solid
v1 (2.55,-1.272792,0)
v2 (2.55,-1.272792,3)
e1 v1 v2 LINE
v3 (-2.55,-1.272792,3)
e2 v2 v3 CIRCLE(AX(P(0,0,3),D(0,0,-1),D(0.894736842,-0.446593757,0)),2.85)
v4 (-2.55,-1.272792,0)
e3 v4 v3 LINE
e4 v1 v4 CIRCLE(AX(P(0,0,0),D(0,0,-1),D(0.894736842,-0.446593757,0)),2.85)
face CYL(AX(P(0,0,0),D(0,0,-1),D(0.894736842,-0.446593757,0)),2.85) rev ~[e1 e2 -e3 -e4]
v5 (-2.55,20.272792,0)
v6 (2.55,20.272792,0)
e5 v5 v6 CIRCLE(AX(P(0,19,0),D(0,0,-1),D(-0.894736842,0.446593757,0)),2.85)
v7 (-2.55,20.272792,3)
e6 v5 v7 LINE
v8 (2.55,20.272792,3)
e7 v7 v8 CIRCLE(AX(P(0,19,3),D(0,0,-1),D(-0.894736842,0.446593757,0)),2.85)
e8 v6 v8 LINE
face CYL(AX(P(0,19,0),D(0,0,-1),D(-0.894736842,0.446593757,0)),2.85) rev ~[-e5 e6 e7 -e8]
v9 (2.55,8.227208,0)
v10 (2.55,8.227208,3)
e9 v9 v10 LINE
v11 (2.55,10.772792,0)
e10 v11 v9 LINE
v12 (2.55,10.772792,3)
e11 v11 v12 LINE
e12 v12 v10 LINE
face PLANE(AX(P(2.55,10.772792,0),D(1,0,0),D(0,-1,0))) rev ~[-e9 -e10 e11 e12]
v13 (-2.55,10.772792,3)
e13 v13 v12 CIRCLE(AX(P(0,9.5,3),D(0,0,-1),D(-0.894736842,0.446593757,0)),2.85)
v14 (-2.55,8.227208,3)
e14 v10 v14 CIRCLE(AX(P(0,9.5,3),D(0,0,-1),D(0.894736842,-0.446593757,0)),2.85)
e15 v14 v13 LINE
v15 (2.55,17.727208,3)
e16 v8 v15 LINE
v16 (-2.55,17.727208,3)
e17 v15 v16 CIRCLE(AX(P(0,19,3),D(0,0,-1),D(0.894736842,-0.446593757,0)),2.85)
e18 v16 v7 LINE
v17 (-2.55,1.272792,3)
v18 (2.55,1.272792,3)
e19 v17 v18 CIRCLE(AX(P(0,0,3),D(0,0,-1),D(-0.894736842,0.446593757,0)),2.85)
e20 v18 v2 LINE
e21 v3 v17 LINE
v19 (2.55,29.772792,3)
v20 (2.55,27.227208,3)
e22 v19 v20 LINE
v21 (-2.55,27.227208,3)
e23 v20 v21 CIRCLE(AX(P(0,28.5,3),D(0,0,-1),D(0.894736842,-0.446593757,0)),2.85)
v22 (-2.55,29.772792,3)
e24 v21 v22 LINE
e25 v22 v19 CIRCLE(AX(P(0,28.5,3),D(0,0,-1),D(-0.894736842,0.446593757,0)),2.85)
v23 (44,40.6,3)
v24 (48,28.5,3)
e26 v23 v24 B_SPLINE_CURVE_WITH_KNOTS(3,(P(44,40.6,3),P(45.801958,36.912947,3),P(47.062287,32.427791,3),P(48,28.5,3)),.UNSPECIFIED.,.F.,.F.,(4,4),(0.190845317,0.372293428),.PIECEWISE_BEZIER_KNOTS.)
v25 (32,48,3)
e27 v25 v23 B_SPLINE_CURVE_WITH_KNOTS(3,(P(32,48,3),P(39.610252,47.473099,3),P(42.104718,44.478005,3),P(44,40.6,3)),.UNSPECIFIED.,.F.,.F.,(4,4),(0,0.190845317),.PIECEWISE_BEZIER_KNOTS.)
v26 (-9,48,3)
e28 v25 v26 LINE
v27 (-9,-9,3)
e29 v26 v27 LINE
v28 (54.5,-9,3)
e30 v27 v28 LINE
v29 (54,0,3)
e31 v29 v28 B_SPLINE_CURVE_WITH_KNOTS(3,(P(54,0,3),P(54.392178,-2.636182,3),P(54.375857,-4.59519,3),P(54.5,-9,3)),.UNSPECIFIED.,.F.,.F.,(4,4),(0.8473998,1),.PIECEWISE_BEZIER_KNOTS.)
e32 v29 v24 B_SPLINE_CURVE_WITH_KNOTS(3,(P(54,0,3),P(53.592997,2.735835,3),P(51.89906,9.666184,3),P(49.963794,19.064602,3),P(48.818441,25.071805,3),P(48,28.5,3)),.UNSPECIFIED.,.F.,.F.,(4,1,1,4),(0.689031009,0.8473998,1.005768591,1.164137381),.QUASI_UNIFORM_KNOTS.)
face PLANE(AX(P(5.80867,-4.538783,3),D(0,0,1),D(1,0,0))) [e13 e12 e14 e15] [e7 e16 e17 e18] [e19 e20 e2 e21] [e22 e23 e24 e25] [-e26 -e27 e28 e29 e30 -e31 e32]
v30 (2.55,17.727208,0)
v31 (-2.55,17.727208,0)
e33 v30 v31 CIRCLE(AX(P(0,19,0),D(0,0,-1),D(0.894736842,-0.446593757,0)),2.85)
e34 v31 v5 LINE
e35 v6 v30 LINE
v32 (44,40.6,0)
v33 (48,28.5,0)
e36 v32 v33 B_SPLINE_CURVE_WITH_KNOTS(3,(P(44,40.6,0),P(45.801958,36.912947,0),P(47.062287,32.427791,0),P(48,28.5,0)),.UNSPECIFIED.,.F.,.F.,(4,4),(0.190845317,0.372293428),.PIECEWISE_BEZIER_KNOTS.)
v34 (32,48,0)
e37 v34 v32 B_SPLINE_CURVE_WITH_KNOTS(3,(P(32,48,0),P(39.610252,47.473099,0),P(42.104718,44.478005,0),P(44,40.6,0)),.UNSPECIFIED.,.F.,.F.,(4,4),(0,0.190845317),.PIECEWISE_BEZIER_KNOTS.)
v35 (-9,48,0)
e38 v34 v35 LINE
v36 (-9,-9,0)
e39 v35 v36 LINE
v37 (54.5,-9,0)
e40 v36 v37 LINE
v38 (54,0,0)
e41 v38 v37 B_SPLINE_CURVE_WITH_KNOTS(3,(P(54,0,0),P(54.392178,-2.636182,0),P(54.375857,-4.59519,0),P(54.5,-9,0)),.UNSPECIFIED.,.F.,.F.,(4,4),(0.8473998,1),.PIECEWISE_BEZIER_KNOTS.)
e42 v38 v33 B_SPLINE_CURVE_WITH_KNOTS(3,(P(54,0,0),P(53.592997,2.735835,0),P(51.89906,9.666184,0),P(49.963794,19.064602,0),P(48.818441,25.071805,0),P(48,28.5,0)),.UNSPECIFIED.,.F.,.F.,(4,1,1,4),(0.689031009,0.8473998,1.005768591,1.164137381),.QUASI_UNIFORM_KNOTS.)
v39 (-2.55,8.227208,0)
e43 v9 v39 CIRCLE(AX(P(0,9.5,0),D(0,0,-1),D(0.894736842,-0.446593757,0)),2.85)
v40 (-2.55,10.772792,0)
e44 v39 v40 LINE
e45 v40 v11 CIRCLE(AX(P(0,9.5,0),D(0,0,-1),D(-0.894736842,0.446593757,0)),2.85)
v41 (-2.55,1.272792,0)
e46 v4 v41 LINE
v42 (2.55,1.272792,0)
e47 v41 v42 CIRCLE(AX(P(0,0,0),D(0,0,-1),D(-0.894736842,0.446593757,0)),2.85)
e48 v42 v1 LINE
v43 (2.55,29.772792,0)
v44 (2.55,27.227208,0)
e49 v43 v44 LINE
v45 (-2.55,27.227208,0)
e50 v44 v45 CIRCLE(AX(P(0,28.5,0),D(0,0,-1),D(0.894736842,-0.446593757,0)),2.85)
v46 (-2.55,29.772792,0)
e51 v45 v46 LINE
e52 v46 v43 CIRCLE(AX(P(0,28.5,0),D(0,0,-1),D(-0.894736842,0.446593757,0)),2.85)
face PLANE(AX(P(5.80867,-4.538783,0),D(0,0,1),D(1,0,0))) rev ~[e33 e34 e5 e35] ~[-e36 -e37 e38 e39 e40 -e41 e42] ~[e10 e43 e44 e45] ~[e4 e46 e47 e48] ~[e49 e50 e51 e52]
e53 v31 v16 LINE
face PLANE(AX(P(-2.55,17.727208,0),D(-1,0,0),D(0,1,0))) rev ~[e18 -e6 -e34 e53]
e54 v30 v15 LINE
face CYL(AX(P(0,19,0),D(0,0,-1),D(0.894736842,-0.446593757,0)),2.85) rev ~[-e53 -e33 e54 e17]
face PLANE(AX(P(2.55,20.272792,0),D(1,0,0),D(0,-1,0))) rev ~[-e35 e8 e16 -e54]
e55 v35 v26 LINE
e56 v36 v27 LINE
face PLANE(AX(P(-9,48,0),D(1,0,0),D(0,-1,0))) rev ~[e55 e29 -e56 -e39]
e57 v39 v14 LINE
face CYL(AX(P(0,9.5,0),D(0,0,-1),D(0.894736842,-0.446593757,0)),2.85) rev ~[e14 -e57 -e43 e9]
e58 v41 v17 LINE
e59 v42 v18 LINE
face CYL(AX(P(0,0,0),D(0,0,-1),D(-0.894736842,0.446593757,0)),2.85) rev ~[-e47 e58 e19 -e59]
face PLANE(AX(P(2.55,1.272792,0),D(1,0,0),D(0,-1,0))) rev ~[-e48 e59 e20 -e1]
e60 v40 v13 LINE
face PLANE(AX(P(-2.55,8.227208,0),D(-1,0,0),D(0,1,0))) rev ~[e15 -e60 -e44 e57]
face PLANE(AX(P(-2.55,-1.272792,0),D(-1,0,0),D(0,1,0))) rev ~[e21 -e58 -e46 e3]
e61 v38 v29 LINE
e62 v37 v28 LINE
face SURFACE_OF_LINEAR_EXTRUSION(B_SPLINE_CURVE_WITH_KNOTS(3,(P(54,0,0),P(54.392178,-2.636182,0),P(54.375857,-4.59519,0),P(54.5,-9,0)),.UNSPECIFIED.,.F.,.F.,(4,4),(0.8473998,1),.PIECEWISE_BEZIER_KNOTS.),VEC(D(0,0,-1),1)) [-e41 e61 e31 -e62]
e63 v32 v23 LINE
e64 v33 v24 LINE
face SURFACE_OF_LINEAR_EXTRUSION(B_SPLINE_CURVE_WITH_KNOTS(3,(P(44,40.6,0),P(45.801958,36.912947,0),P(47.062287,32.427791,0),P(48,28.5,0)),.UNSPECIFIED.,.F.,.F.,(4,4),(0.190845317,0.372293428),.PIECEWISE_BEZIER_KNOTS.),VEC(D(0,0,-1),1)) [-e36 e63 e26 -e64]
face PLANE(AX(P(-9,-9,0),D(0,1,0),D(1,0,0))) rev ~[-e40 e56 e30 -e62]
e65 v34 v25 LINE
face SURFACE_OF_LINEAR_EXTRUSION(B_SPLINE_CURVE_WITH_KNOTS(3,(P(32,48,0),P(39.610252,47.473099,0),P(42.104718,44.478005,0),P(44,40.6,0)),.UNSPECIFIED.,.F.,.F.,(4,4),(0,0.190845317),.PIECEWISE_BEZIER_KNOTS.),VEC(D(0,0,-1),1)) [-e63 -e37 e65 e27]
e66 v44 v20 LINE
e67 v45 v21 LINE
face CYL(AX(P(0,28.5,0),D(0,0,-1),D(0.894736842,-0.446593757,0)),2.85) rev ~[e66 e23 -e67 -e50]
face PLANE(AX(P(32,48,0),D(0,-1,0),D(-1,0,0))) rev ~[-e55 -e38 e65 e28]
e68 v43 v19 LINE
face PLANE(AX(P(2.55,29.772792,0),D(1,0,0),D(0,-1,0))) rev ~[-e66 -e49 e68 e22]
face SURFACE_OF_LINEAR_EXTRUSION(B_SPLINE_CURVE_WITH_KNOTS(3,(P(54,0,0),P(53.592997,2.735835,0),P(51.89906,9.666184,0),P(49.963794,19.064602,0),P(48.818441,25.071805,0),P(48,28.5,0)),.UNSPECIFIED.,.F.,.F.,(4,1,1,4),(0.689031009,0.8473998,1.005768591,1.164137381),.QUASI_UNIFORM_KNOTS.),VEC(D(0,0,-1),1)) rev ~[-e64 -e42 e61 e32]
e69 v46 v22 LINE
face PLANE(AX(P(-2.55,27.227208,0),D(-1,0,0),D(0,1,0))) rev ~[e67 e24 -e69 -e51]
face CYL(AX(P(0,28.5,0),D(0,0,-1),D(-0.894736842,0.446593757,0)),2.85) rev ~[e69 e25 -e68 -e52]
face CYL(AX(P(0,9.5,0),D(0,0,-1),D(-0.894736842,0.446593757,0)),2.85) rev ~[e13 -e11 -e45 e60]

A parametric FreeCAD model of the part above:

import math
import FreeCAD as App
import Part
import Sketcher
Q = App.Units.Quantity

doc = App.newDocument("Part")
body = doc.addObject("PartDesign::Body", "Body")

sketch1 = doc.addObject("Sketcher::SketchObject", "Sketch")
body.addObject(sketch1)
sketch1.AttachmentSupport = (doc.XY_Plane, [""])
sketch1.MapMode = "FlatFace"
sketch1.addGeometry(Part.BSplineCurve([App.Vector(54, 0, 0), App.Vector(53.592997, 2.735835, 0), App.Vector(51.89906, 9.666184, 0), App.Vector(49.963794, 19.064602, 0), App.Vector(48.818441, 25.071805, 0), App.Vector(48, 28.5, 0)], [4, 1, 1, 4], [0.689031009, 0.8473998, 1.005768591, 1.164137381], False, 3, [1, 1, 1, 1, 1, 1], False), False)
sketch1.addGeometry(Part.BSplineCurve([App.Vector(44, 40.6, 0), App.Vector(45.801958, 36.912947, 0), App.Vector(47.062287, 32.427791, 0), App.Vector(48, 28.5, 0)], [4, 4], [0.190845317, 0.372293428], False, 3, [1, 1, 1, 1], False), False)
sketch1.addGeometry(Part.BSplineCurve([App.Vector(32, 48, 0), App.Vector(39.610252, 47.473099, 0), App.Vector(42.104718, 44.478005, 0), App.Vector(44, 40.6, 0)], [4, 4], [0, 0.190845317], False, 3, [1, 1, 1, 1], False), False)
sketch1.addGeometry(Part.LineSegment(App.Vector(32, 48, 0), App.Vector(-9, 48, 0)), False)
sketch1.addGeometry(Part.LineSegment(App.Vector(-9, 48, 0), App.Vector(-9, -9, 0)), False)
sketch1.addGeometry(Part.LineSegment(App.Vector(-9, -9, 0), App.Vector(54.5, -9, 0)), False)
sketch1.addGeometry(Part.BSplineCurve([App.Vector(54, 0, 0), App.Vector(54.392178, -2.636182, 0), App.Vector(54.375857, -4.59519, 0), App.Vector(54.5, -9, 0)], [4, 4], [0.8473998, 1], False, 3, [1, 1, 1, 1], False), False)
sketch1.addGeometry(Part.ArcOfCircle(Part.Circle(App.Vector(0, 0, 0), App.Vector(0, 0, 1), 2.85), math.radians(26.525352), math.radians(153.474648)), False)
sketch1.addGeometry(Part.LineSegment(App.Vector(2.55, 1.272792, 0), App.Vector(2.55, -1.272792, 0)), False)
sketch1.addGeometry(Part.ArcOfCircle(Part.Circle(App.Vector(0, 0, 0), App.Vector(0, 0, 1), 2.85), math.radians(-153.474648), math.radians(-26.525352)), False)
sketch1.addGeometry(Part.LineSegment(App.Vector(-2.55, -1.272792, 0), App.Vector(-2.55, 1.272792, 0)), False)
sketch1.addGeometry(Part.LineSegment(App.Vector(2.55, 10.772792, 0), App.Vector(2.55, 8.227208, 0)), False)
sketch1.addGeometry(Part.ArcOfCircle(Part.Circle(App.Vector(0, 9.5, 0), App.Vector(0, 0, 1), 2.85), math.radians(-153.474648), math.radians(-26.525352)), False)
sketch1.addGeometry(Part.LineSegment(App.Vector(-2.55, 8.227208, 0), App.Vector(-2.55, 10.772792, 0)), False)
sketch1.addGeometry(Part.ArcOfCircle(Part.Circle(App.Vector(0, 9.5, 0), App.Vector(0, 0, 1), 2.85), math.radians(26.525352), math.radians(153.474648)), False)
sketch1.addGeometry(Part.ArcOfCircle(Part.Circle(App.Vector(0, 19, 0), App.Vector(0, 0, 1), 2.85), math.radians(26.525352), math.radians(153.474648)), False)
sketch1.addGeometry(Part.LineSegment(App.Vector(2.55, 20.272792, 0), App.Vector(2.55, 17.727208, 0)), False)
sketch1.addGeometry(Part.ArcOfCircle(Part.Circle(App.Vector(0, 19, 0), App.Vector(0, 0, 1), 2.85), math.radians(-153.474648), math.radians(-26.525352)), False)
sketch1.addGeometry(Part.LineSegment(App.Vector(-2.55, 17.727208, 0), App.Vector(-2.55, 20.272792, 0)), False)
sketch1.addGeometry(Part.LineSegment(App.Vector(2.55, 29.772792, 0), App.Vector(2.55, 27.227208, 0)), False)
sketch1.addGeometry(Part.ArcOfCircle(Part.Circle(App.Vector(0, 28.5, 0), App.Vector(0, 0, 1), 2.85), math.radians(-153.474648), math.radians(-26.525352)), False)
sketch1.addGeometry(Part.LineSegment(App.Vector(-2.55, 27.227208, 0), App.Vector(-2.55, 29.772792, 0)), False)
sketch1.addGeometry(Part.ArcOfCircle(Part.Circle(App.Vector(0, 28.5, 0), App.Vector(0, 0, 1), 2.85), math.radians(26.525352), math.radians(153.474648)), False)
sketch1.addConstraint(Sketcher.Constraint("Block", 0))
sketch1.addConstraint(Sketcher.Constraint("Block", 1))
sketch1.addConstraint(Sketcher.Constraint("Block", 2))
sketch1.addConstraint(Sketcher.Constraint("Block", 6))
sketch1.addConstraint(Sketcher.Constraint("Coincident", 2, 1, 3, 1))
sketch1.addConstraint(Sketcher.Constraint("Coincident", 3, 2, 4, 1))
sketch1.addConstraint(Sketcher.Constraint("Coincident", 4, 2, 5, 1))
sketch1.addConstraint(Sketcher.Constraint("Coincident", 5, 2, 6, 2))
sketch1.addConstraint(Sketcher.Constraint("Coincident", 7, 1, 8, 1))
sketch1.addConstraint(Sketcher.Constraint("Coincident", 8, 2, 9, 2))
sketch1.addConstraint(Sketcher.Constraint("Coincident", 9, 1, 10, 1))
sketch1.addConstraint(Sketcher.Constraint("Coincident", 10, 2, 7, 2))
sketch1.addConstraint(Sketcher.Constraint("Coincident", 11, 2, 12, 2))
sketch1.addConstraint(Sketcher.Constraint("Coincident", 12, 1, 13, 1))
sketch1.addConstraint(Sketcher.Constraint("Coincident", 13, 2, 14, 2))
sketch1.addConstraint(Sketcher.Constraint("Coincident", 14, 1, 11, 1))
sketch1.addConstraint(Sketcher.Constraint("Coincident", 15, 1, 16, 1))
sketch1.addConstraint(Sketcher.Constraint("Coincident", 16, 2, 17, 2))
sketch1.addConstraint(Sketcher.Constraint("Coincident", 17, 1, 18, 1))
sketch1.addConstraint(Sketcher.Constraint("Coincident", 18, 2, 15, 2))
sketch1.addConstraint(Sketcher.Constraint("Coincident", 19, 2, 20, 2))
sketch1.addConstraint(Sketcher.Constraint("Coincident", 20, 1, 21, 1))
sketch1.addConstraint(Sketcher.Constraint("Coincident", 21, 2, 22, 2))
sketch1.addConstraint(Sketcher.Constraint("Coincident", 22, 1, 19, 1))
sketch1.addConstraint(Sketcher.Constraint("Horizontal", 3))
sketch1.addConstraint(Sketcher.Constraint("Vertical", 4))
sketch1.addConstraint(Sketcher.Constraint("Horizontal", 5))
sketch1.addConstraint(Sketcher.Constraint("Vertical", 8))
sketch1.addConstraint(Sketcher.Constraint("Vertical", 10))
sketch1.addConstraint(Sketcher.Constraint("Vertical", 11))
sketch1.addConstraint(Sketcher.Constraint("Vertical", 13))
sketch1.addConstraint(Sketcher.Constraint("Vertical", 16))
sketch1.addConstraint(Sketcher.Constraint("Vertical", 18))
sketch1.addConstraint(Sketcher.Constraint("Vertical", 19))
sketch1.addConstraint(Sketcher.Constraint("Vertical", 21))
sketch1.addConstraint(Sketcher.Constraint("Coincident", 7, 3, -1, 1))
sketch1.addConstraint(Sketcher.Constraint("Coincident", 9, 3, -1, 1))
sketch1.addConstraint(Sketcher.Constraint("Coincident", 14, 3, 12, 3))
sketch1.addConstraint(Sketcher.Constraint("Coincident", 17, 3, 15, 3))
sketch1.addConstraint(Sketcher.Constraint("Coincident", 22, 3, 20, 3))
sketch1.addConstraint(Sketcher.Constraint("Equal", 7, 9))
sketch1.addConstraint(Sketcher.Constraint("Equal", 9, 12))
sketch1.addConstraint(Sketcher.Constraint("Equal", 12, 14))
sketch1.addConstraint(Sketcher.Constraint("Equal", 14, 15))
sketch1.addConstraint(Sketcher.Constraint("Equal", 15, 17))
sketch1.addConstraint(Sketcher.Constraint("Equal", 17, 20))
sketch1.addConstraint(Sketcher.Constraint("Equal", 20, 22))
sketch1.addConstraint(Sketcher.Constraint("Symmetric", 11, 2, 12, 1, -2))
sketch1.addConstraint(Sketcher.Constraint("Symmetric", 16, 2, 17, 1, -2))
sketch1.addConstraint(Sketcher.Constraint("Symmetric", 19, 2, 20, 1, -2))
sketch1.addConstraint(Sketcher.Constraint("Horizontal", 8, 2, 9, 1))
sketch1.addConstraint(Sketcher.Constraint("Vertical", 8, 2, 11, 2))
sketch1.addConstraint(Sketcher.Constraint("Vertical", 14, 1, 15, 1))
sketch1.addConstraint(Sketcher.Constraint("Vertical", 16, 2, 19, 2))
sketch1.addConstraint(Sketcher.Constraint("DistanceX", 3, 2, 3, 1, Q("41 mm")))
sketch1.addConstraint(Sketcher.Constraint("Radius", 7, Q("2.85 mm")))
sketch1.addConstraint(Sketcher.Constraint("DistanceY", -1, 1, 15, 3, Q("19 mm")))
sketch1.addConstraint(Sketcher.Constraint("DistanceY", 12, 3, 20, 3, Q("19 mm")))
sketch1.addConstraint(Sketcher.Constraint("DistanceY", -1, 1, 12, 3, Q("9.5 mm")))
sketch1.addConstraint(Sketcher.Constraint("DistanceX", 9, 1, 8, 2, Q("5.1 mm")))
pad1 = doc.addObject("PartDesign::Pad", "Pad")
body.addObject(pad1)
pad1.Profile = sketch1
pad1.Length = 3

doc.recompute()
